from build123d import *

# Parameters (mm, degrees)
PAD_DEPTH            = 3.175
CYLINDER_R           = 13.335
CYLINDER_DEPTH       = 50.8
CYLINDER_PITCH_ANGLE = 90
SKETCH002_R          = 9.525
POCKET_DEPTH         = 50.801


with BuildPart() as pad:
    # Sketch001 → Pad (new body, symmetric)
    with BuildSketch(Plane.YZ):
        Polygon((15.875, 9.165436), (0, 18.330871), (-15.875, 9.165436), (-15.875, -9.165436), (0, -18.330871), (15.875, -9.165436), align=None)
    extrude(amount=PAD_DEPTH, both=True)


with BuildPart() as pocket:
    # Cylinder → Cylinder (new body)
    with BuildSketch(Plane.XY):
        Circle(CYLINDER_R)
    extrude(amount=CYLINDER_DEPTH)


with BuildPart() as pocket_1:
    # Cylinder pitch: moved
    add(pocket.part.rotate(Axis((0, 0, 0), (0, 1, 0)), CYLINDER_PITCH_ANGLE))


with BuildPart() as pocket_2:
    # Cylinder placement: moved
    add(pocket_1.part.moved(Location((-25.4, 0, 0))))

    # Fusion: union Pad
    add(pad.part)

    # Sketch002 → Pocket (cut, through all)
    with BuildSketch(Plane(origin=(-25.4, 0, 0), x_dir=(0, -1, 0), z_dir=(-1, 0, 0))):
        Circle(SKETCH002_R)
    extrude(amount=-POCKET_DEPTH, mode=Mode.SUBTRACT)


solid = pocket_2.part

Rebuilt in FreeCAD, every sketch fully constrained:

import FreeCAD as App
import Part
import Sketcher
Q = App.Units.Quantity

doc = App.newDocument("Part")
body = doc.addObject("PartDesign::Body", "Body")

sketch1 = body.newObject("Sketcher::SketchObject", "Sketch")
sketch1.AttachmentSupport = (doc.getObject("YZ_Plane"), [""])
sketch1.MapMode = "FlatFace"
sketch1.addGeometry([
    Part.LineSegment(App.Vector(16, 9, 0), App.Vector(0, 18, 0)),
    Part.LineSegment(App.Vector(0, 18, 0), App.Vector(-16, 9, 0)),
    Part.LineSegment(App.Vector(-16, 9, 0), App.Vector(-16, -9, 0)),
    Part.LineSegment(App.Vector(-16, -9, 0), App.Vector(0, -18, 0)),
    Part.LineSegment(App.Vector(0, -18, 0), App.Vector(16, -9, 0)),
    Part.LineSegment(App.Vector(16, -9, 0), App.Vector(16, 9, 0)),
], False)
sketch1.addConstraint([
    Sketcher.Constraint("Coincident", 0, 2, 1, 1),
    Sketcher.Constraint("Coincident", 1, 2, 2, 1),
    Sketcher.Constraint("Coincident", 2, 2, 3, 1),
    Sketcher.Constraint("Coincident", 3, 2, 4, 1),
    Sketcher.Constraint("Coincident", 4, 2, 5, 1),
    Sketcher.Constraint("Coincident", 5, 2, 0, 1),
    Sketcher.Constraint("Vertical", 2),
    Sketcher.Constraint("Vertical", 5),
    Sketcher.Constraint("Symmetric", 0, 2, 3, 2, -1, 1),
    Sketcher.Constraint("Symmetric", 1, 2, 4, 2, -1, 1),
    Sketcher.Constraint("PointOnObject", 0, 2, -2),
    Sketcher.Constraint("Parallel", 0, 3),
    Sketcher.Constraint("Horizontal", 2, 2, 4, 2),
    Sketcher.Constraint("Angle", 0, Q("150.000001 deg")),
    Sketcher.Constraint("DistanceX", 2, 2, 4, 2, Q("1.25 in")),
    Sketcher.Constraint("DistanceY", 2, 2, 2, 1, 18.330872),
])
pad1 = body.newObject("PartDesign::Pad", "Pad")
pad1.Profile = sketch1
pad1.Length = Q("0.25 in")
pad1.Midplane = True
body2 = doc.addObject("PartDesign::Body", "Body001")

sketch2 = body2.newObject("Sketcher::SketchObject", "Sketch001")
sketch2.AttachmentSupport = (doc.getObject("XY_Plane001"), [""])
sketch2.MapMode = "FlatFace"
sketch2.addGeometry(Part.Circle(App.Vector(0, 0, 0), App.Vector(0, 0, 1), 13), False)
sketch2.addConstraint([
    Sketcher.Constraint("Coincident", 0, 3, -1, 1),
    Sketcher.Constraint("Diameter", 0, Q("1.05 in")),
])
pad2 = body2.newObject("PartDesign::Pad", "Pad001")
pad2.Profile = sketch2
pad2.Length = Q("2 in")
body3 = doc.addObject("PartDesign::Body", "Body002")
doc.recompute()

body2.Placement = App.Placement(App.Vector(0, 0, 0), App.Rotation(App.Vector(0, 1, 0), 90))
boolean = body3.newObject("PartDesign::Boolean", "Boolean")
boolean.Type = "Fuse"
boolean.addObjects([body2])
body4 = doc.addObject("PartDesign::Body", "Body003")
doc.recompute()

body3.Placement = App.Placement(App.Vector(-25.4, 0, 0), App.Rotation(App.Vector(0, 0, 1), 0))
boolean2 = body4.newObject("PartDesign::Boolean", "Boolean001")
boolean2.Type = "Fuse"
boolean2.addObjects([body3])
doc.recompute()

boolean3 = body4.newObject("PartDesign::Boolean", "Boolean002")
boolean3.Type = "Fuse"
boolean3.addObjects([body])

sketch3 = body4.newObject("Sketcher::SketchObject", "Sketch002")
sketch3.AttachmentSupport = (doc.getObject("YZ_Plane003"), [""])
sketch3.MapMode = "FlatFace"
sketch3.AttachmentOffset = App.Placement(App.Vector(0, 0, -1 * 25.4), App.Rotation())
sketch3.addGeometry(Part.Circle(App.Vector(0, 0, 0), App.Vector(0, 0, 1), 10), False)
sketch3.addConstraint([
    Sketcher.Constraint("Coincident", 0, 3, -1, 1),
    Sketcher.Constraint("Diameter", 0, Q("0.75 in")),
])
pocket1 = body4.newObject("PartDesign::Pocket", "Pocket")
pocket1.Profile = sketch3
pocket1.Type = "ThroughAll"
pocket1.Reversed = True

doc.recompute()
